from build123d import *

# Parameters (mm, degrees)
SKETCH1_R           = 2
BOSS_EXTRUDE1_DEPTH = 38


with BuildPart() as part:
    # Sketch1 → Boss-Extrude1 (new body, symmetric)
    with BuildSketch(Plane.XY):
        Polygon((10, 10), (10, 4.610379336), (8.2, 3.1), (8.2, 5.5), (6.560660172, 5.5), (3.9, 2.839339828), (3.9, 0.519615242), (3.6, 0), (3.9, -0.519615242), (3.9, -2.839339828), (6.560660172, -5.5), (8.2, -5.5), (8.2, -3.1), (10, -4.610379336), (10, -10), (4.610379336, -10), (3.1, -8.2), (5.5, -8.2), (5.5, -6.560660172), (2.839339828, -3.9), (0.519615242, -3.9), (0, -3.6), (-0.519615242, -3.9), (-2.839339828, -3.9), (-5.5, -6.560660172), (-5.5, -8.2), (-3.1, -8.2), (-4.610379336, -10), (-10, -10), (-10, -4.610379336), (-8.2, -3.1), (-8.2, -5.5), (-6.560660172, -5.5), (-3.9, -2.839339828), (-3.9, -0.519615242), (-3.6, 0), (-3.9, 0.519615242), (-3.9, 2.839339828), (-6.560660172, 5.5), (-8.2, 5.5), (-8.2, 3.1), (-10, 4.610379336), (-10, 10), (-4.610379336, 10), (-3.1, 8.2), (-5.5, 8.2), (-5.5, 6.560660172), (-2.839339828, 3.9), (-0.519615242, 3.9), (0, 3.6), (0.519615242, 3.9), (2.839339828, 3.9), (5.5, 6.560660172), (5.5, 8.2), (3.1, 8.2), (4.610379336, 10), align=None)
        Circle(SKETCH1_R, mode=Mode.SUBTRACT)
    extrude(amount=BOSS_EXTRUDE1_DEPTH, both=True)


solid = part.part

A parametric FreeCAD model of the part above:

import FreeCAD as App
import Part
import Sketcher
Q = App.Units.Quantity


def add_polygon(sketch, points):
    """Adds a closed chain of lines whose ends are joined by coincident constraints."""
    first, n = sketch.GeometryCount, len(points)
    for a, b in zip(points, points[1:] + points[:1]):
        sketch.addGeometry(Part.LineSegment(App.Vector(*a, 0), App.Vector(*b, 0)), False)
    for i in range(n):
        sketch.addConstraint(Sketcher.Constraint("Coincident", first + i, 2, first + (i + 1) % n, 1))

doc = App.newDocument("Part")
body = doc.addObject("PartDesign::Body", "Body")

# Sketch on XY plane
sketch1 = body.newObject("Sketcher::SketchObject", "Sketch")
sketch1.AttachmentSupport = (doc.getObject("XY_Plane"), [""])
sketch1.MapMode = "FlatFace"
add_polygon(sketch1, [(10, 4.610379), (10, 10), (4.610379, 10), (3.1, 8.2), (5.5, 8.2), (5.5, 6.56066), (2.83934, 3.9), (0.519615, 3.9), (0, 3.6), (-0.519615, 3.9), (-2.83934, 3.9), (-5.5, 6.56066), (-5.5, 8.2), (-3.1, 8.2), (-4.610379, 10), (-10, 10), (-10, 4.610379), (-8.2, 3.1), (-8.2, 5.5), (-6.56066, 5.5), (-3.9, 2.83934), (-3.9, 0.519615), (-3.6, 0), (-3.9, -0.519615), (-3.9, -2.83934), (-6.56066, -5.5), (-8.2, -5.5), (-8.2, -3.1), (-10, -4.610379), (-10, -10), (-4.610379, -10), (-3.1, -8.2), (-5.5, -8.2), (-5.5, -6.56066), (-2.83934, -3.9), (-0.519615, -3.9), (0, -3.6), (0.519615, -3.9), (2.83934, -3.9), (5.5, -6.56066), (5.5, -8.2), (3.1, -8.2), (4.610379, -10), (10, -10), (10, -4.610379), (8.2, -3.1), (8.2, -5.5), (6.56066, -5.5), (3.9, -2.83934), (3.9, -0.519615), (3.6, 0), (3.9, 0.519615), (3.9, 2.83934), (6.56066, 5.5), (8.2, 5.5), (8.2, 3.1)])  # lines 0-55
sketch1.addGeometry(Part.Circle(App.Vector(0, 0, 0), App.Vector(0, 0, 1), 2), False)  # 56
sketch1.addConstraint([
    Sketcher.Constraint("Vertical", 0),
    Sketcher.Constraint("Horizontal", 1),
    Sketcher.Constraint("Horizontal", 3),
    Sketcher.Constraint("Vertical", 4),
    Sketcher.Constraint("Horizontal", 6),
    Sketcher.Constraint("Horizontal", 9),
    Sketcher.Constraint("Vertical", 11),
    Sketcher.Constraint("Horizontal", 12),
    Sketcher.Constraint("Horizontal", 14),
    Sketcher.Constraint("Vertical", 15),
    Sketcher.Constraint("Vertical", 17),
    Sketcher.Constraint("Horizontal", 18),
    Sketcher.Constraint("Vertical", 20),
    Sketcher.Constraint("Vertical", 23),
    Sketcher.Constraint("Horizontal", 25),
    Sketcher.Constraint("Vertical", 26),
    Sketcher.Constraint("Vertical", 28),
    Sketcher.Constraint("Horizontal", 29),
    Sketcher.Constraint("Horizontal", 31),
    Sketcher.Constraint("Vertical", 32),
    Sketcher.Constraint("Horizontal", 34),
    Sketcher.Constraint("Horizontal", 37),
    Sketcher.Constraint("Vertical", 39),
    Sketcher.Constraint("Horizontal", 40),
    Sketcher.Constraint("Horizontal", 42),
    Sketcher.Constraint("Vertical", 43),
    Sketcher.Constraint("Vertical", 45),
    Sketcher.Constraint("Horizontal", 46),
    Sketcher.Constraint("Vertical", 48),
    Sketcher.Constraint("Vertical", 51),
    Sketcher.Constraint("Horizontal", 53),
    Sketcher.Constraint("Vertical", 54),
    Sketcher.Constraint("Coincident", 56, 3, -1, 1),
    Sketcher.Constraint("Symmetric", 0, 2, 28, 2, -1, 1),
    Sketcher.Constraint("Symmetric", 2, 2, 30, 2, -1, 1),
    Sketcher.Constraint("Symmetric", 4, 2, 32, 2, -1, 1),
    Sketcher.Constraint("Symmetric", 5, 2, 33, 2, -1, 1),
    Sketcher.Constraint("Symmetric", 7, 2, 35, 2, -1, 1),
    Sketcher.Constraint("Symmetric", 8, 2, 36, 2, -1, 1),
    Sketcher.Constraint("Symmetric", 10, 2, 38, 2, -1, 1),
    Sketcher.Constraint("Symmetric", 12, 2, 40, 2, -1, 1),
    Sketcher.Constraint("Symmetric", 13, 2, 41, 2, -1, 1),
    Sketcher.Constraint("Symmetric", 15, 2, 43, 2, -1, 1),
    Sketcher.Constraint("Symmetric", 16, 2, 44, 2, -1, 1),
    Sketcher.Constraint("Symmetric", 18, 2, 46, 2, -1, 1),
    Sketcher.Constraint("Symmetric", 19, 2, 47, 2, -1, 1),
    Sketcher.Constraint("Symmetric", 21, 2, 49, 2, -1, 1),
    Sketcher.Constraint("Symmetric", 22, 2, 50, 2, -1, 1),
    Sketcher.Constraint("Symmetric", 24, 2, 52, 2, -1, 1),
    Sketcher.Constraint("Symmetric", 26, 2, 54, 2, -1, 1),
    Sketcher.Constraint("Symmetric", 6, 2, 8, 2, -2),
    Sketcher.Constraint("Symmetric", 4, 2, 10, 2, -2),
    Sketcher.Constraint("Symmetric", 2, 2, 12, 2, -2),
    Sketcher.Constraint("Symmetric", 1, 2, 13, 2, -2),
    Sketcher.Constraint("Symmetric", 27, 2, 43, 2, -2),
    Sketcher.Constraint("Symmetric", 26, 2, 44, 2, -2),
    Sketcher.Constraint("Symmetric", 24, 2, 46, 2, -2),
    Sketcher.Constraint("Symmetric", 23, 2, 47, 2, -2),
    Sketcher.Constraint("PointOnObject", 7, 2, -2),
    Sketcher.Constraint("PointOnObject", 21, 2, -1),
    Sketcher.Constraint("Perpendicular", 5, 10),
    Sketcher.Constraint("Perpendicular", 2, 16),
    Sketcher.Constraint("Parallel", 10, 19),
    Sketcher.Constraint("Perpendicular", 7, 21),
    Sketcher.Constraint("Perpendicular", 8, 22),
    Sketcher.Constraint("Perpendicular", 19, 24),
    Sketcher.Constraint("Perpendicular", 16, 30),
    Sketcher.Constraint("Perpendicular", 21, 35),
    Sketcher.Constraint("Perpendicular", 33, 38),
    Sketcher.Constraint("Perpendicular", 35, 49),
    Sketcher.Constraint("Perpendicular", 47, 52),
    Sketcher.Constraint("Perpendicular", 41, 55),
    Sketcher.Constraint("Equal", 42, 0),
    Sketcher.Constraint("Equal", 53, 4),
    Sketcher.Constraint("Equal", 40, 17),
    Sketcher.Constraint("Equal", 37, 20),
    Sketcher.Constraint("Equal", 13, 16),
    Sketcher.Constraint("Equal", 10, 19),
    Sketcher.Constraint("Equal", 8, 21),
    Sketcher.Constraint("Diameter", 56, Q("4 mm")),
    Sketcher.Constraint("Angle", 2, Q("-130 deg")),
    Sketcher.Constraint("Angle", 7, Q("-150 deg")),
    Sketcher.Constraint("DistanceX", 3, 1, 3, 2, Q("2.4 mm")),
    Sketcher.Constraint("DistanceX", -1, 1, 0, 2, Q("10 mm")),
    Sketcher.Constraint("Distance", 7, Q("0.6 mm")),
    Sketcher.Constraint("DistanceX", -1, 1, 2, 2, Q("3.1 mm")),
    Sketcher.Constraint("DistanceY", -1, 1, 2, 2, Q("8.2 mm")),
    Sketcher.Constraint("DistanceY", -1, 1, 5, 2, Q("3.9 mm")),
    Sketcher.Constraint("DistanceX", 18, 1, 18, 2, Q("1.63934 mm")),
])
pad1 = body.newObject("PartDesign::Pad", "Pad")
pad1.Profile = sketch1
pad1.Length = 76
pad1.Midplane = True

doc.recompute()
